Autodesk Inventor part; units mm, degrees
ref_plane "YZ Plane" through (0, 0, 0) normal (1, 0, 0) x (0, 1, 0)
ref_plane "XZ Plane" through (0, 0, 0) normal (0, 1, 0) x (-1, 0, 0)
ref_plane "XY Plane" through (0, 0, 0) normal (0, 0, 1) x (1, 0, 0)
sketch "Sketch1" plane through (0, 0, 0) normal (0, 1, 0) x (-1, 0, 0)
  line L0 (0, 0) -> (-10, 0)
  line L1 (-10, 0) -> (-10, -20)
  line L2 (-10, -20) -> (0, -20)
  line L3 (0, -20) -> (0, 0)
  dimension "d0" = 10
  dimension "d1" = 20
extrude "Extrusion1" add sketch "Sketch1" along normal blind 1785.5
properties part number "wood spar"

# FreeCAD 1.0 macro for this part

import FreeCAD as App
import Part
import Sketcher


def add_polygon(sketch, points):
    """Adds a closed chain of lines whose ends are joined by coincident constraints."""
    first, n = sketch.GeometryCount, len(points)
    for a, b in zip(points, points[1:] + points[:1]):
        sketch.addGeometry(Part.LineSegment(App.Vector(*a, 0), App.Vector(*b, 0)), False)
    for i in range(n):
        sketch.addConstraint(Sketcher.Constraint("Coincident", first + i, 2, first + (i + 1) % n, 1))

doc = App.newDocument("Part")
params = doc.addObject("Spreadsheet::Sheet", "Params")
for row, (alias, value) in enumerate([
    ("sketch1_width", "10 mm"),
    ("sketch1_height", "20 mm"),
    ("pad1_length", "1785.5 mm"),
], start=1):
    params.set(f"A{row}", alias)
    params.set(f"B{row}", "=" + value)
    params.setAlias(f"B{row}", alias)

body = doc.addObject("PartDesign::Body", "Body")

sketch1 = body.newObject("Sketcher::SketchObject", "Sketch")
sketch1.AttachmentSupport = (doc.getObject("XZ_Plane"), [""])
sketch1.MapMode = "FlatFace"
add_polygon(sketch1, [(0, -20), (0, 0), (10, 0), (10, -20)])
sketch1.addConstraint(Sketcher.Constraint("Vertical", 0))
sketch1.addConstraint(Sketcher.Constraint("Horizontal", 1))
sketch1.addConstraint(Sketcher.Constraint("Vertical", 2))
sketch1.addConstraint(Sketcher.Constraint("Horizontal", 3))
sketch1.addConstraint(Sketcher.Constraint("Coincident", 0, 2, -1, 1))
sketch1.addConstraint(Sketcher.Constraint("DistanceX", 1, 1, 1, 2, 10.0))
sketch1.addConstraint(Sketcher.Constraint("DistanceY", 0, 1, 0, 2, 20.0))
sketch1.setExpression("Constraints[9]", "Params.sketch1_width")
sketch1.setExpression("Constraints[10]", "Params.sketch1_height")
pad1 = body.newObject("PartDesign::Pad", "Pad")
pad1.Profile = sketch1
pad1.setExpression("Length", "Params.pad1_length")
pad1.Reversed = True

doc.recompute()
